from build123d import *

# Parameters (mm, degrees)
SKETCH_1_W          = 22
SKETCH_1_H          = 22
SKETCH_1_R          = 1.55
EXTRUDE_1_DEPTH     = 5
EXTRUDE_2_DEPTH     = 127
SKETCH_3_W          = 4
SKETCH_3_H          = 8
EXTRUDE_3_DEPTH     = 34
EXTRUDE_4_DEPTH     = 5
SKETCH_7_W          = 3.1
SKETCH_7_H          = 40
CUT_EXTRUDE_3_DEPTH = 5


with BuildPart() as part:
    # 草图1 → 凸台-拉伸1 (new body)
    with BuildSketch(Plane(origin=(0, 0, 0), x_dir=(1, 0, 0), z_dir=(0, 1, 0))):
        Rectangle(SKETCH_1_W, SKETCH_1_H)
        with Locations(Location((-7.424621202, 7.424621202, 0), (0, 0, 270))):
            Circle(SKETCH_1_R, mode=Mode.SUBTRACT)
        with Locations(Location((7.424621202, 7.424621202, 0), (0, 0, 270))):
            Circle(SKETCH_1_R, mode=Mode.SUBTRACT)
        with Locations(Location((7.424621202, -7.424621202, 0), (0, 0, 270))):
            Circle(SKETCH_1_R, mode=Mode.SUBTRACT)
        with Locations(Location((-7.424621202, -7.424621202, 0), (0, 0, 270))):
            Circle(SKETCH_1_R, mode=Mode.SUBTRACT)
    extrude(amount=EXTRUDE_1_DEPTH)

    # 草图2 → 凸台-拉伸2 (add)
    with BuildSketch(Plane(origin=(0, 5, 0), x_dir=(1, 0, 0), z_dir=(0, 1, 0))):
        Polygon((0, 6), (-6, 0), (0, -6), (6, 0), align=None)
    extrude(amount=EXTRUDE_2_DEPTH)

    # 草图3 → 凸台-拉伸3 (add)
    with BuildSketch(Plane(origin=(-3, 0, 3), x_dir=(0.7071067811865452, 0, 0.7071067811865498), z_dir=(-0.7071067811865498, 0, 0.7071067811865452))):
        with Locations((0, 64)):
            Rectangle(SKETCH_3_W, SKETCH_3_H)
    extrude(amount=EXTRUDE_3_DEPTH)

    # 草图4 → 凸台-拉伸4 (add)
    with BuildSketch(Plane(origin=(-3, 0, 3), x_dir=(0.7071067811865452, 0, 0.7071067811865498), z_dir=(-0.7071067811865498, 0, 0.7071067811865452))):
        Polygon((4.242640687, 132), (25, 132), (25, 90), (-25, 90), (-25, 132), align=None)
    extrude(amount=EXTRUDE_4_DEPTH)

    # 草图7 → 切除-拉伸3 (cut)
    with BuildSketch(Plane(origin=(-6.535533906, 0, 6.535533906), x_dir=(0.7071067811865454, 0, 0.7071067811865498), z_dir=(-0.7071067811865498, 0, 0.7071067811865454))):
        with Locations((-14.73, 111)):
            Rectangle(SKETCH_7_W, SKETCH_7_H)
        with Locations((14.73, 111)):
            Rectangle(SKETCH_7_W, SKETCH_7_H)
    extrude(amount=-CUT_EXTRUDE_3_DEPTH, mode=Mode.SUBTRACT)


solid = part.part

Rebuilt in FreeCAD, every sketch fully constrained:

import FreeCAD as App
import Part
import Sketcher

V = App.Vector


def add_polygon(sketch, points):
    """Adds a closed chain of lines whose ends are joined by coincident constraints."""
    first, n = sketch.GeometryCount, len(points)
    for a, b in zip(points, points[1:] + points[:1]):
        sketch.addGeometry(Part.LineSegment(App.Vector(*a, 0), App.Vector(*b, 0)), False)
    for i in range(n):
        sketch.addConstraint(Sketcher.Constraint("Coincident", first + i, 2, first + (i + 1) % n, 1))

doc = App.newDocument("Part")
body = doc.addObject("PartDesign::Body", "Body")

# Sketch on XZ plane
sketch1 = body.newObject("Sketcher::SketchObject", "Sketch")
sketch1.AttachmentSupport = (doc.getObject("XZ_Plane"), [""])
sketch1.MapMode = "FlatFace"
add_polygon(sketch1, [(-11, -11), (-11, 11), (11, 11), (11, -11)])  # lines 0-3
sketch1.addGeometry(Part.Circle(V(-7.4, 7.4, 0), V(0, 0, 1), 1.6), False)  # 4
sketch1.addGeometry(Part.Circle(V(7.4, 7.4, 0), V(0, 0, 1), 1.6), False)  # 5
sketch1.addGeometry(Part.Circle(V(-7.4, -7.4, 0), V(0, 0, 1), 1.6), False)  # 6
sketch1.addGeometry(Part.Circle(V(7.4, -7.4, 0), V(0, 0, 1), 1.6), False)  # 7
sketch1.addConstraint([
    Sketcher.Constraint("Vertical", 0),
    Sketcher.Constraint("Horizontal", 1),
    Sketcher.Constraint("Vertical", 2),
    Sketcher.Constraint("Horizontal", 3),
    Sketcher.Constraint("Equal", 4, 5),
    Sketcher.Constraint("Equal", 5, 6),
    Sketcher.Constraint("Equal", 6, 7),
    Sketcher.Constraint("Symmetric", 5, 3, 6, 3, -1, 1),
    Sketcher.Constraint("Symmetric", 4, 3, 7, 3, -1, 1),
    Sketcher.Constraint("Symmetric", 0, 2, 2, 2, -1, 1),
    Sketcher.Constraint("Symmetric", 4, 3, 5, 3, -2),
    Sketcher.Constraint("Equal", 3, 0),
    Sketcher.Constraint("Diameter", 4, 3.1),
    Sketcher.Constraint("DistanceX", 1, 1, 1, 2, 22.0),
    Sketcher.Constraint("DistanceX", 4, 3, -1, 1, 7.424621),
    Sketcher.Constraint("DistanceY", -1, 1, 4, 3, 7.424621),
])
pad1 = body.newObject("PartDesign::Pad", "Pad")
pad1.Profile = sketch1
pad1.Length = 5
pad1.Reversed = True

# Sketch on XZ plane
sketch2 = body.newObject("Sketcher::SketchObject", "Sketch001")
sketch2.AttachmentSupport = (doc.getObject("XZ_Plane"), [""])
sketch2.MapMode = "FlatFace"
sketch2.AttachmentOffset = App.Placement(V(0, 0, -5), App.Rotation())
add_polygon(sketch2, [(0, -6), (-6, 0), (0, 6), (6, 0)])  # lines 0-3
sketch2.addConstraint([
    Sketcher.Constraint("Symmetric", 0, 2, 2, 2, -1, 1),
    Sketcher.Constraint("Symmetric", 1, 2, 3, 2, -1, 1),
    Sketcher.Constraint("PointOnObject", 0, 2, -1),
    Sketcher.Constraint("PointOnObject", 1, 2, -2),
    Sketcher.Constraint("Perpendicular", 0, 1),
    Sketcher.Constraint("DistanceX", 0, 2, -1, 1, 6.0),
])
pad2 = body.newObject("PartDesign::Pad", "Pad001")
pad2.Profile = sketch2
pad2.Length = 127
pad2.Reversed = True

# Sketch on an angled plane
sketch3 = body.newObject("Sketcher::SketchObject", "Sketch002")
sketch3.Placement = App.Placement(V(-3, 0, 3), App.Rotation(V(0.707106781, 0, 0.707106781), V(0, 0.999999999, 0), V(-0.707106781, 0, 0.707106781), "ZXY"))
add_polygon(sketch3, [(-2, 68), (-2, 60), (2, 60), (2, 68)])  # lines 0-3
sketch3.addConstraint([
    Sketcher.Constraint("Vertical", 0),
    Sketcher.Constraint("Horizontal", 1),
    Sketcher.Constraint("Vertical", 2),
    Sketcher.Constraint("Horizontal", 3),
    Sketcher.Constraint("DistanceX", 1, 1, 1, 2, 4.0),
    Sketcher.Constraint("DistanceY", 0, 2, 0, 1, 8.0),
    Sketcher.Constraint("DistanceX", 0, 2, -1, 1, 2.0),
    Sketcher.Constraint("DistanceY", -1, 1, 0, 2, 60.0),
])
pad3 = body.newObject("PartDesign::Pad", "Pad002")
pad3.Profile = sketch3
pad3.Length = 34

# Sketch on an angled plane
sketch4 = body.newObject("Sketcher::SketchObject", "Sketch003")
sketch4.Placement = App.Placement(V(-3, 0, 3), App.Rotation(V(0.707106781, 0, 0.707106781), V(0, 0.999999999, 0), V(-0.707106781, 0, 0.707106781), "ZXY"))
add_polygon(sketch4, [(25, 132), (-25, 132), (-25, 90), (25, 90)])  # lines 0-3
sketch4.addConstraint([
    Sketcher.Constraint("Horizontal", 0),
    Sketcher.Constraint("Vertical", 1),
    Sketcher.Constraint("Horizontal", 2),
    Sketcher.Constraint("Vertical", 3),
    Sketcher.Constraint("DistanceX", 0, 2, 0, 1, 50.0),
    Sketcher.Constraint("DistanceY", 1, 2, 1, 1, 42.0),
    Sketcher.Constraint("DistanceX", 0, 2, -1, 1, 25.0),
    Sketcher.Constraint("DistanceY", -1, 1, 0, 2, 132.0),
])
pad4 = body.newObject("PartDesign::Pad", "Pad003")
pad4.Profile = sketch4
pad4.Length = 5

# Sketch on an angled plane
sketch5 = body.newObject("Sketcher::SketchObject", "Sketch004")
sketch5.Placement = App.Placement(V(-6.535534, 0, 6.535534), App.Rotation(V(0.707106781, 0, 0.707106781), V(0, 0.999999999, 0), V(-0.707106781, 0, 0.707106781), "ZXY"))
add_polygon(sketch5, [(-16.3, 131), (-16.3, 91), (-13.2, 91), (-13.2, 131)])  # lines 0-3
add_polygon(sketch5, [(13.2, 131), (13.2, 91), (16.3, 91), (16.3, 131)])  # lines 4-7
sketch5.addConstraint([
    Sketcher.Constraint("Vertical", 0),
    Sketcher.Constraint("Horizontal", 1),
    Sketcher.Constraint("Vertical", 2),
    Sketcher.Constraint("Horizontal", 3),
    Sketcher.Constraint("Vertical", 4),
    Sketcher.Constraint("Horizontal", 5),
    Sketcher.Constraint("Vertical", 6),
    Sketcher.Constraint("Horizontal", 7),
    Sketcher.Constraint("Symmetric", 1, 2, 4, 2, -2),
    Sketcher.Constraint("Symmetric", 3, 2, 6, 2, -2),
    Sketcher.Constraint("DistanceY", 0, 2, 0, 1, 40.0),
    Sketcher.Constraint("DistanceX", 1, 1, 1, 2, 3.1),
    Sketcher.Constraint("DistanceY", -1, 1, 0, 2, 91.0),
    Sketcher.Constraint("DistanceX", 0, 2, -1, 1, 16.28),
])
pocket1 = body.newObject("PartDesign::Pocket", "Pocket")
pocket1.Profile = sketch5
pocket1.Length = 5

doc.recompute()
